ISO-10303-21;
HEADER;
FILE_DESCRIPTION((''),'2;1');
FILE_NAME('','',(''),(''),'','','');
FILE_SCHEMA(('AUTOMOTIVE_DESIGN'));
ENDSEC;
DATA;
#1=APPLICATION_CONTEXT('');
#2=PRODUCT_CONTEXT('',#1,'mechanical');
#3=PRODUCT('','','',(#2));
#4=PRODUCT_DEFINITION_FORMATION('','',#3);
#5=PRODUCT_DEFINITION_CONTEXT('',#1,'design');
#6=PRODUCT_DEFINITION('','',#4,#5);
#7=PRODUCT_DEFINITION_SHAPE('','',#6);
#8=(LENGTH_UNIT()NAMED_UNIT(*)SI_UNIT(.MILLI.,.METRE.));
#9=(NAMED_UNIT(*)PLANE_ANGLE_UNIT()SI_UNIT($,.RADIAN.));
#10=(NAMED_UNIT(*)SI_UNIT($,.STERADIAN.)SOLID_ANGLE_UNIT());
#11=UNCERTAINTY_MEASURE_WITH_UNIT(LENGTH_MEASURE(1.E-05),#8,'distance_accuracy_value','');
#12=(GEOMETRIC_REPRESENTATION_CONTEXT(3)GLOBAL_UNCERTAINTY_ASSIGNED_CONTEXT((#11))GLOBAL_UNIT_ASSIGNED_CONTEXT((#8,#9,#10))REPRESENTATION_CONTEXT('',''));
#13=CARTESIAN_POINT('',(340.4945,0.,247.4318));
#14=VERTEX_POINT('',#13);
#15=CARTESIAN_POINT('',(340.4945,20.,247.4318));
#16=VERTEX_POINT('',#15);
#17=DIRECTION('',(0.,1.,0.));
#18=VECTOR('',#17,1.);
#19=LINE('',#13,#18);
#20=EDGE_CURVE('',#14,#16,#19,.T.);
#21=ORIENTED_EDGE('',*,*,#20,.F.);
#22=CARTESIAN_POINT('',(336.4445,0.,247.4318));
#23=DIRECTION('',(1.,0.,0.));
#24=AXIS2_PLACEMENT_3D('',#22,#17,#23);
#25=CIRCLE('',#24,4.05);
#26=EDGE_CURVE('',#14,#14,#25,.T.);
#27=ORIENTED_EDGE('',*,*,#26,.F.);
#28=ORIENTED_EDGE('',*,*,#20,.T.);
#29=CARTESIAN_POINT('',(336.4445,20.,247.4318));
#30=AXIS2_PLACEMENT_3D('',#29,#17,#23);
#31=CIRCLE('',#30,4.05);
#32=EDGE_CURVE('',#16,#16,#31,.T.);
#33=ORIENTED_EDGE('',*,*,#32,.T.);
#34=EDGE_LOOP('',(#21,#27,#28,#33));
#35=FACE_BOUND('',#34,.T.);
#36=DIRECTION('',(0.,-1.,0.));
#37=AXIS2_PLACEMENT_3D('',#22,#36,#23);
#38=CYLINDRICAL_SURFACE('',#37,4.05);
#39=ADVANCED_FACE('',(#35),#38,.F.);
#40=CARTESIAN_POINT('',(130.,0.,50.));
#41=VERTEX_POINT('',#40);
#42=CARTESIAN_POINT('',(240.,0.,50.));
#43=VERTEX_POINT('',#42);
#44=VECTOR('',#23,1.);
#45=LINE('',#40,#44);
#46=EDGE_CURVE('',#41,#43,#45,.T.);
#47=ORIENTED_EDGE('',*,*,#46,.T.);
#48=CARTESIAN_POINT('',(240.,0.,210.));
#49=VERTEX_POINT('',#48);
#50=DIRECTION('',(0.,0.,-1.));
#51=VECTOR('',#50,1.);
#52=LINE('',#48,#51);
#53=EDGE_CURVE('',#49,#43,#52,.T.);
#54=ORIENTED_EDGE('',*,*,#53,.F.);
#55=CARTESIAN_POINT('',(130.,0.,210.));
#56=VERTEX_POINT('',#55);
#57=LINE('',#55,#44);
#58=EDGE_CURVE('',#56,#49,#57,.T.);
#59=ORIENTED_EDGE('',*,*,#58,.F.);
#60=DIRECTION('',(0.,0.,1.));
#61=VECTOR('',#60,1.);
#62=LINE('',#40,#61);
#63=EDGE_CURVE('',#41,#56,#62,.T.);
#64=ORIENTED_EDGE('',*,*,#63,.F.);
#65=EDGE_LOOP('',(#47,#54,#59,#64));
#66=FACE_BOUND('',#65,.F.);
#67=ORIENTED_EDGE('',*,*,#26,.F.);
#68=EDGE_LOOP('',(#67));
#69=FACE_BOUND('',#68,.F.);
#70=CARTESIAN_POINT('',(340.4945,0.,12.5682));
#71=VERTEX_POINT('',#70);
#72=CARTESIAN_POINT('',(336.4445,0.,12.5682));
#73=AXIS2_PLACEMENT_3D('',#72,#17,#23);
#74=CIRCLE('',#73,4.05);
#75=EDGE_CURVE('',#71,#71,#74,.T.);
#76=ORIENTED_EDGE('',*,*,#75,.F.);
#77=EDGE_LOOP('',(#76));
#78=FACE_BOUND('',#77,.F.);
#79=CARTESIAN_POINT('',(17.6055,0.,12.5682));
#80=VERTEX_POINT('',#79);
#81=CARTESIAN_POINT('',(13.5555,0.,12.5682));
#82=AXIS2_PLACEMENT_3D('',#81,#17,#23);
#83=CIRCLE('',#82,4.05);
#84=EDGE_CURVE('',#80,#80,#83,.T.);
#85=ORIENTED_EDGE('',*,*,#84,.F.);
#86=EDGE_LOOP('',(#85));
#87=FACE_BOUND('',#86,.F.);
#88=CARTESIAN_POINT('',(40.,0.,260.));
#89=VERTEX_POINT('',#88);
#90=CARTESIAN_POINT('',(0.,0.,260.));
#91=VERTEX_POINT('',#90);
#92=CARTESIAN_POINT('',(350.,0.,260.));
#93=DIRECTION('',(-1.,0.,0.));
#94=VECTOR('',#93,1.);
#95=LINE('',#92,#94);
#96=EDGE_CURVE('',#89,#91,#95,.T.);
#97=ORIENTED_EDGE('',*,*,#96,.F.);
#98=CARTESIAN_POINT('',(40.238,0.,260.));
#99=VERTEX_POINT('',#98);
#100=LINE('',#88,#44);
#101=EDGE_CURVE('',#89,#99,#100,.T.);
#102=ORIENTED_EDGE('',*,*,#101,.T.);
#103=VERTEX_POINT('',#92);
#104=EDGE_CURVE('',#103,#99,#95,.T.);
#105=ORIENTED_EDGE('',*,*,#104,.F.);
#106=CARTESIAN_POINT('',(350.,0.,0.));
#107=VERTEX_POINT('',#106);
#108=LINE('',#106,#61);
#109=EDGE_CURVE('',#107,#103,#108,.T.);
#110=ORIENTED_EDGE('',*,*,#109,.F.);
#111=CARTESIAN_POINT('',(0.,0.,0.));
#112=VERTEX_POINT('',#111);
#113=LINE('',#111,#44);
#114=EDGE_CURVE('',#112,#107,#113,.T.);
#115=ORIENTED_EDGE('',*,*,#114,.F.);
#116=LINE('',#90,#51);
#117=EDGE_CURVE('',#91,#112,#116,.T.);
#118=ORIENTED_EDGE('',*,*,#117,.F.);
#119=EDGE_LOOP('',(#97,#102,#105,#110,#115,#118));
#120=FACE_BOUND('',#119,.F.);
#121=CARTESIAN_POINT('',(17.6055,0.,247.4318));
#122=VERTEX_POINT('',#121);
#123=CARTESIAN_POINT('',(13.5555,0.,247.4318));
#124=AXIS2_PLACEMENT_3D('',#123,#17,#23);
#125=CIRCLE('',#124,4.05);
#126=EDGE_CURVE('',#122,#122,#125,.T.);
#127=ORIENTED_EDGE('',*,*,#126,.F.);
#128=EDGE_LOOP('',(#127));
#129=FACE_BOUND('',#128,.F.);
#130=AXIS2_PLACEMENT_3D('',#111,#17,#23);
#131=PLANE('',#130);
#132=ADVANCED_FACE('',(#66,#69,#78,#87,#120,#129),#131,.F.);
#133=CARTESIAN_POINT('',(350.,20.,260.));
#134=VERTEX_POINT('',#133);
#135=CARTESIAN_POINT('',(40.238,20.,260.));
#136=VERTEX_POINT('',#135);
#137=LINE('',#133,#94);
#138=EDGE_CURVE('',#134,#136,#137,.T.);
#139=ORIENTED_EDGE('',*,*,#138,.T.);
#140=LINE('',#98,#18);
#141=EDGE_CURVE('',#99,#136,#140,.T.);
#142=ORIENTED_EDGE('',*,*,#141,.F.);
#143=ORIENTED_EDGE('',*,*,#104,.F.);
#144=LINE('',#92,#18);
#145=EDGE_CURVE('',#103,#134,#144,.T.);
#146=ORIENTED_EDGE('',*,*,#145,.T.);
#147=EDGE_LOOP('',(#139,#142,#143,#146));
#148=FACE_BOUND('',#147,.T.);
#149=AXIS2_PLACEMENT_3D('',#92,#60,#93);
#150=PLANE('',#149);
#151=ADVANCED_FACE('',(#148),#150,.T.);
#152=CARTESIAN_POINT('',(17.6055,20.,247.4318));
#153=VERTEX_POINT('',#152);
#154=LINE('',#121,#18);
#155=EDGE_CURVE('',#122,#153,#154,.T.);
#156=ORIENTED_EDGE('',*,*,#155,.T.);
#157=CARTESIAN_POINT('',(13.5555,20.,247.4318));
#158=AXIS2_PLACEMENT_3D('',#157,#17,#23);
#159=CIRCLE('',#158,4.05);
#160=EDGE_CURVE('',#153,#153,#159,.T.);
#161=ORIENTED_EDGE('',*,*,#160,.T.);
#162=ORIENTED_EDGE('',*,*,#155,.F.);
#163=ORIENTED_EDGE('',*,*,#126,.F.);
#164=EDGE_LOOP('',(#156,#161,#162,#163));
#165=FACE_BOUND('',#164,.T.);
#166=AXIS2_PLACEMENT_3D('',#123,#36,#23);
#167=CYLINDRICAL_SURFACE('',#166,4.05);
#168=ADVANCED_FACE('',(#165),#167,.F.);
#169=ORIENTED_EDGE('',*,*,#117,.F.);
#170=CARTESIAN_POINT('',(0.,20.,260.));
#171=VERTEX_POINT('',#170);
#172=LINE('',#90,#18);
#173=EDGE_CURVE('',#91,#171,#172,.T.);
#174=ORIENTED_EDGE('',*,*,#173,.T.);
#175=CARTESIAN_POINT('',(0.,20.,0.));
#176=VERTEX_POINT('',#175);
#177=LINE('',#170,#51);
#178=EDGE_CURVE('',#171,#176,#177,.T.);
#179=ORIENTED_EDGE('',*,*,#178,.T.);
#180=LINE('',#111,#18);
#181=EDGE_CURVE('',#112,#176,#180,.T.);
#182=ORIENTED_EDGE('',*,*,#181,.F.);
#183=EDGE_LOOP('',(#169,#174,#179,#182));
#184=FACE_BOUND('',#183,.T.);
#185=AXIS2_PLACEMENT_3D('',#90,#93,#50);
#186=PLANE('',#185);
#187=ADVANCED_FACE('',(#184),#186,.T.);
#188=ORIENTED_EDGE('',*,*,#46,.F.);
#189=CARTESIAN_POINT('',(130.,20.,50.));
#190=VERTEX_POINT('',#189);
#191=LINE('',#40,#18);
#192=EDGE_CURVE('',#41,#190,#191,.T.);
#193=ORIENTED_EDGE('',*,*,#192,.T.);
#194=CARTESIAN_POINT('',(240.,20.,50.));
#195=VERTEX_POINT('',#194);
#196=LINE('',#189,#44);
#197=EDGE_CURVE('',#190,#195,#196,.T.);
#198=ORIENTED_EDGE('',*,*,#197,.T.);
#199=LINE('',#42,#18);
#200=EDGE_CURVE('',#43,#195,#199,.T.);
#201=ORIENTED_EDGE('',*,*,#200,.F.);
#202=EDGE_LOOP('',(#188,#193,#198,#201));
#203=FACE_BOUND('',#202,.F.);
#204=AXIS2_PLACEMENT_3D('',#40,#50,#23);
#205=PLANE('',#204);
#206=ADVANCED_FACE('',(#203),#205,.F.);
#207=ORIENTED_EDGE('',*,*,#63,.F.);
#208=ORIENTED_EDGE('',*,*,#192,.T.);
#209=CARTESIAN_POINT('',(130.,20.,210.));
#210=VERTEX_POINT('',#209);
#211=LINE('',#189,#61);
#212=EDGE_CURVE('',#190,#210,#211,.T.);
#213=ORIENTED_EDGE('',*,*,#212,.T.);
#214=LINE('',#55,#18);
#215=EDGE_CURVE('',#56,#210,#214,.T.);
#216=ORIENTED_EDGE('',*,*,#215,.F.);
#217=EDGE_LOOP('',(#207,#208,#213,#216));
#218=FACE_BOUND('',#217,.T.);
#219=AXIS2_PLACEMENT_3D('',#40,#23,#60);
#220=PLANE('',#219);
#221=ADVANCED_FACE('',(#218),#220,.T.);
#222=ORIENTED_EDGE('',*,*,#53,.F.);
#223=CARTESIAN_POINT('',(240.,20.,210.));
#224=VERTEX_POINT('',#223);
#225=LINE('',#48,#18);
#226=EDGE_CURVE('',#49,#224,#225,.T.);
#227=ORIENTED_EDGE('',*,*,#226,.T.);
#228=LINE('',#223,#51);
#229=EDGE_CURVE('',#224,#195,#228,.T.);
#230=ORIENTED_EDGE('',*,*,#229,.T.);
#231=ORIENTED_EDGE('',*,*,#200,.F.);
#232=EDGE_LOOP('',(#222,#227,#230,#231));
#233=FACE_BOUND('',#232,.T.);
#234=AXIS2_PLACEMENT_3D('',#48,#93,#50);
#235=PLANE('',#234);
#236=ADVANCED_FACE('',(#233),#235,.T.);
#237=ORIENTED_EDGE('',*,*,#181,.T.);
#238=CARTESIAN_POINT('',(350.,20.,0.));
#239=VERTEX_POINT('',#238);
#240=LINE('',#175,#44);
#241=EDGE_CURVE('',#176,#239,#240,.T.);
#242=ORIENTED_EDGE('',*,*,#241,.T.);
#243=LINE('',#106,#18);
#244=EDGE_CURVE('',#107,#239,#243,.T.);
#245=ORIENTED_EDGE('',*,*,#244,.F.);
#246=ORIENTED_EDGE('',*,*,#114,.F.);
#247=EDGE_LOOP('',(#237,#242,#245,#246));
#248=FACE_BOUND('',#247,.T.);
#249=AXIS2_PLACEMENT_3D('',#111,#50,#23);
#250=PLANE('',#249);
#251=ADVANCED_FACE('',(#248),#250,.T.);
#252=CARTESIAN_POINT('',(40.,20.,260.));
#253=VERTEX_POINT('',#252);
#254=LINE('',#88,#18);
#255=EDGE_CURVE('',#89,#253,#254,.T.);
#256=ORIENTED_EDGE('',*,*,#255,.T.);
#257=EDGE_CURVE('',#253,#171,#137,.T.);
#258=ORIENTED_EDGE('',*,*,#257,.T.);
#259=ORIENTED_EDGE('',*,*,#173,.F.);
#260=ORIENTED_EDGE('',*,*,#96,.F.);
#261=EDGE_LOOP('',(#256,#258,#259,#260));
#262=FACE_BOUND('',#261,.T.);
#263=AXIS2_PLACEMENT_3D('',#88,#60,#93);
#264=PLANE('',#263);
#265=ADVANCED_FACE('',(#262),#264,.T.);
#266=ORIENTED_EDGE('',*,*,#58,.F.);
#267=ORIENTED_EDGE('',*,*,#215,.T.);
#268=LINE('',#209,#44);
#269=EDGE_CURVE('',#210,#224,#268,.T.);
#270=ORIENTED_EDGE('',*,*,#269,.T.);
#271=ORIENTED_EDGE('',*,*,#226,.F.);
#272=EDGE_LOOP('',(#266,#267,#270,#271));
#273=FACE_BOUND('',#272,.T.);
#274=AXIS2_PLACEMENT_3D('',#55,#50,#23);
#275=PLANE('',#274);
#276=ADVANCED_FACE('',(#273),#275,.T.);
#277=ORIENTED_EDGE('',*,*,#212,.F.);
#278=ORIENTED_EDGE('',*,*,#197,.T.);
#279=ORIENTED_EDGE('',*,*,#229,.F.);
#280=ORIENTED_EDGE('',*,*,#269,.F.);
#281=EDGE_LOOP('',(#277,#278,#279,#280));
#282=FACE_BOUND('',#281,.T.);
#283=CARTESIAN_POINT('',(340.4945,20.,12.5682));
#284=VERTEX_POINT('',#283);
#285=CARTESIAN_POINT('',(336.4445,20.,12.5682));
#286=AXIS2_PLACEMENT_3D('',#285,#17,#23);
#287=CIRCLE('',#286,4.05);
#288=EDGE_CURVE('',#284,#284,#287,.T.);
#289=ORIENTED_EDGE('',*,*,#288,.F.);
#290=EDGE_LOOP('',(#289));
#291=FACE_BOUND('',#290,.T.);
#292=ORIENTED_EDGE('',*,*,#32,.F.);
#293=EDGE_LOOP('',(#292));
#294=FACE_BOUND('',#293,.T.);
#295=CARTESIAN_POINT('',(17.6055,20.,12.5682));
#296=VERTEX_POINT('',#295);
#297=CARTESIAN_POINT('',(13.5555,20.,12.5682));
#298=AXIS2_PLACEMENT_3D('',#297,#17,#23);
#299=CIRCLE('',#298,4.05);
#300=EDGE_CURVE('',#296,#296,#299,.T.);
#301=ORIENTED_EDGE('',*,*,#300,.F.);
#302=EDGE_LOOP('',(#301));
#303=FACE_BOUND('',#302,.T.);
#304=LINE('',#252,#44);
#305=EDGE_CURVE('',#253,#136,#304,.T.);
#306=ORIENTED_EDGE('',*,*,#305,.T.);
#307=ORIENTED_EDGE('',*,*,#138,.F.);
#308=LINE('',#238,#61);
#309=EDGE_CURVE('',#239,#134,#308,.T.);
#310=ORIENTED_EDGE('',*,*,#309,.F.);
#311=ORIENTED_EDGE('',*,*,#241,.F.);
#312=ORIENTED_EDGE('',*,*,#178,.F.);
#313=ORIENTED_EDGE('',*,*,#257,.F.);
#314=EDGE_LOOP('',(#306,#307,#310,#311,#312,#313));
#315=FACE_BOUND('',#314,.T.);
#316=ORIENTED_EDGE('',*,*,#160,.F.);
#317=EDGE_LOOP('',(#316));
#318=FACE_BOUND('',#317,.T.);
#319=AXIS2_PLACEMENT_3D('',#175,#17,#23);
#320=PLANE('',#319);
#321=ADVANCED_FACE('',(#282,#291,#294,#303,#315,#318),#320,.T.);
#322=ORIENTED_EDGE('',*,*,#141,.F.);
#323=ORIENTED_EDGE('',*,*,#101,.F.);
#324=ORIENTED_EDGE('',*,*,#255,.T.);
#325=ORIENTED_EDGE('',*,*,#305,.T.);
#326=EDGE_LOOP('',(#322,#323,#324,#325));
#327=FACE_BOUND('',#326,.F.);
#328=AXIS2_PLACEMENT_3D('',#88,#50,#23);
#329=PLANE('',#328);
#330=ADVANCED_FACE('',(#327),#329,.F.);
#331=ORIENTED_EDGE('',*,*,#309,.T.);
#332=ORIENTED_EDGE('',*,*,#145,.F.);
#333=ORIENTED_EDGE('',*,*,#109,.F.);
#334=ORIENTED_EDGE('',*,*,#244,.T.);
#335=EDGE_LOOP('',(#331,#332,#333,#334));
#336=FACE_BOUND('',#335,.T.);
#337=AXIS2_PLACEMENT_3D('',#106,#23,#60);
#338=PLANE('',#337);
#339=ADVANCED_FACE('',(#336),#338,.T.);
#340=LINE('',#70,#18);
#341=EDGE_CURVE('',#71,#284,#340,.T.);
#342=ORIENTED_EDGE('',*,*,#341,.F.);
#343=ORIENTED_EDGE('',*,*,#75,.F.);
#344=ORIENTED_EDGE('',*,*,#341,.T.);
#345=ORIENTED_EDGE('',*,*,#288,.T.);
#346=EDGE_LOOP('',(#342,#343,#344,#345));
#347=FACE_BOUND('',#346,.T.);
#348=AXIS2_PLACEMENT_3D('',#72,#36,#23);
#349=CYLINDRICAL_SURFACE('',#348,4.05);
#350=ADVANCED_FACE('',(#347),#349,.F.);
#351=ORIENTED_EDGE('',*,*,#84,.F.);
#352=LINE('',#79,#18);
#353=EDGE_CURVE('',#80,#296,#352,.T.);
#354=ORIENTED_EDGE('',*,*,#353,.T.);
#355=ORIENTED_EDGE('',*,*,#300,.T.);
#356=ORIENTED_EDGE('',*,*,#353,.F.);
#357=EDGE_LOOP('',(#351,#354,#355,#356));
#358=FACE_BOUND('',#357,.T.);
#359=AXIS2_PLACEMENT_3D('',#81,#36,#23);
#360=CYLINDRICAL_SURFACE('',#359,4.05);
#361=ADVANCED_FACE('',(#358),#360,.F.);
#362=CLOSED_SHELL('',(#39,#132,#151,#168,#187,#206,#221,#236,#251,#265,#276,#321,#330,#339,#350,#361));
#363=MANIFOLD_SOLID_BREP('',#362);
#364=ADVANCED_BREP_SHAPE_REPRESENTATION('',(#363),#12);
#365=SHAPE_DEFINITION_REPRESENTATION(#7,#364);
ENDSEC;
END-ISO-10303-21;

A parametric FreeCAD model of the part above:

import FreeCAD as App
import Part
import Sketcher

doc = App.newDocument("Part")
params = doc.addObject("Spreadsheet::Sheet", "Params")
for row, (alias, value) in enumerate([
    ("sketch1_diameter", "8.1 mm"),
    ("sketch1_width", "350 mm"),
    ("sketch1_height", "260 mm"),
    ("sketch1_width2", "110 mm"),
    ("sketch1_height2", "160 mm"),
    ("pad1_length", "20 mm"),
], start=1):
    params.set(f"A{row}", alias)
    params.set(f"B{row}", "=" + value)
    params.setAlias(f"B{row}", alias)

body = doc.addObject("PartDesign::Body", "Body")

# Sketch on XZ plane
sketch1 = body.newObject("Sketcher::SketchObject", "Sketch")
sketch1.AttachmentSupport = (doc.getObject("XZ_Plane"), [""])
sketch1.MapMode = "FlatFace"
sketch1.addGeometry([
    Part.LineSegment(App.Vector(350, 0, 0), App.Vector(0, 0, 0)),  # 0
    Part.LineSegment(App.Vector(0, 0, 0), App.Vector(0, 260, 0)),  # 1
    Part.LineSegment(App.Vector(0, 260, 0), App.Vector(350, 260, 0)),  # 2
    Part.LineSegment(App.Vector(350, 260, 0), App.Vector(350, 0, 0)),  # 3
    Part.Circle(App.Vector(13.5555, 247.4318, 0), App.Vector(0, 0, 1), 4.05),  # 4
    Part.Circle(App.Vector(336.4445, 247.4318, 0), App.Vector(0, 0, 1), 4.05),  # 5
    Part.Circle(App.Vector(13.5555, 12.5682, 0), App.Vector(0, 0, 1), 4.05),  # 6
    Part.LineSegment(App.Vector(130, 210, 0), App.Vector(130, 50, 0)),  # 7
    Part.LineSegment(App.Vector(130, 50, 0), App.Vector(240, 50, 0)),  # 8
    Part.LineSegment(App.Vector(240, 50, 0), App.Vector(240, 210, 0)),  # 9
    Part.LineSegment(App.Vector(240, 210, 0), App.Vector(130, 210, 0)),  # 10
    Part.Circle(App.Vector(336.4445, 12.5682, 0), App.Vector(0, 0, 1), 4.05),  # 11
], False)
sketch1.addConstraint([
    Sketcher.Constraint("Coincident", 0, 2, 1, 1),
    Sketcher.Constraint("Coincident", 1, 2, 2, 1),
    Sketcher.Constraint("Coincident", 2, 2, 3, 1),
    Sketcher.Constraint("Coincident", 3, 2, 0, 1),
    Sketcher.Constraint("Coincident", 7, 2, 8, 1),
    Sketcher.Constraint("Coincident", 8, 2, 9, 1),
    Sketcher.Constraint("Coincident", 9, 2, 10, 1),
    Sketcher.Constraint("Coincident", 10, 2, 7, 1),
    Sketcher.Constraint("Horizontal", 0),
    Sketcher.Constraint("Vertical", 1),
    Sketcher.Constraint("Horizontal", 2),
    Sketcher.Constraint("Vertical", 3),
    Sketcher.Constraint("Vertical", 7),
    Sketcher.Constraint("Horizontal", 8),
    Sketcher.Constraint("Vertical", 9),
    Sketcher.Constraint("Horizontal", 10),
    Sketcher.Constraint("Coincident", 0, 2, -1, 1),
    Sketcher.Constraint("Equal", 4, 5),
    Sketcher.Constraint("Equal", 5, 6),
    Sketcher.Constraint("Equal", 6, 11),
    Sketcher.Constraint("Horizontal", 4, 3, 5, 3),
    Sketcher.Constraint("Horizontal", 6, 3, 11, 3),
    Sketcher.Constraint("Vertical", 4, 3, 6, 3),
    Sketcher.Constraint("Vertical", 5, 3, 11, 3),
    Sketcher.Constraint("Diameter", 4, 8.1),
    Sketcher.Constraint("DistanceX", 0, 2, 0, 1, 350.0),
    Sketcher.Constraint("DistanceY", 1, 1, 1, 2, 260.0),
    Sketcher.Constraint("DistanceX", 8, 1, 8, 2, 110.0),
    Sketcher.Constraint("DistanceY", 7, 2, 7, 1, 160.0),
    Sketcher.Constraint("DistanceX", -1, 1, 7, 2, 130.0),
    Sketcher.Constraint("DistanceY", -1, 1, 7, 2, 50.0),
    Sketcher.Constraint("DistanceX", 4, 3, 5, 3, 322.889),
    Sketcher.Constraint("DistanceX", -1, 1, 4, 3, 13.5555),
    Sketcher.Constraint("DistanceY", -1, 1, 4, 3, 247.4318),
    Sketcher.Constraint("DistanceY", -1, 1, 6, 3, 12.5682),
])
sketch1.setExpression("Constraints[24]", "Params.sketch1_diameter")
sketch1.setExpression("Constraints[25]", "Params.sketch1_width")
sketch1.setExpression("Constraints[26]", "Params.sketch1_height")
sketch1.setExpression("Constraints[27]", "Params.sketch1_width2")
sketch1.setExpression("Constraints[28]", "Params.sketch1_height2")
pad1 = body.newObject("PartDesign::Pad", "Pad")
pad1.Profile = sketch1
pad1.setExpression("Length", "Params.pad1_length")
pad1.Reversed = True

doc.recompute()
